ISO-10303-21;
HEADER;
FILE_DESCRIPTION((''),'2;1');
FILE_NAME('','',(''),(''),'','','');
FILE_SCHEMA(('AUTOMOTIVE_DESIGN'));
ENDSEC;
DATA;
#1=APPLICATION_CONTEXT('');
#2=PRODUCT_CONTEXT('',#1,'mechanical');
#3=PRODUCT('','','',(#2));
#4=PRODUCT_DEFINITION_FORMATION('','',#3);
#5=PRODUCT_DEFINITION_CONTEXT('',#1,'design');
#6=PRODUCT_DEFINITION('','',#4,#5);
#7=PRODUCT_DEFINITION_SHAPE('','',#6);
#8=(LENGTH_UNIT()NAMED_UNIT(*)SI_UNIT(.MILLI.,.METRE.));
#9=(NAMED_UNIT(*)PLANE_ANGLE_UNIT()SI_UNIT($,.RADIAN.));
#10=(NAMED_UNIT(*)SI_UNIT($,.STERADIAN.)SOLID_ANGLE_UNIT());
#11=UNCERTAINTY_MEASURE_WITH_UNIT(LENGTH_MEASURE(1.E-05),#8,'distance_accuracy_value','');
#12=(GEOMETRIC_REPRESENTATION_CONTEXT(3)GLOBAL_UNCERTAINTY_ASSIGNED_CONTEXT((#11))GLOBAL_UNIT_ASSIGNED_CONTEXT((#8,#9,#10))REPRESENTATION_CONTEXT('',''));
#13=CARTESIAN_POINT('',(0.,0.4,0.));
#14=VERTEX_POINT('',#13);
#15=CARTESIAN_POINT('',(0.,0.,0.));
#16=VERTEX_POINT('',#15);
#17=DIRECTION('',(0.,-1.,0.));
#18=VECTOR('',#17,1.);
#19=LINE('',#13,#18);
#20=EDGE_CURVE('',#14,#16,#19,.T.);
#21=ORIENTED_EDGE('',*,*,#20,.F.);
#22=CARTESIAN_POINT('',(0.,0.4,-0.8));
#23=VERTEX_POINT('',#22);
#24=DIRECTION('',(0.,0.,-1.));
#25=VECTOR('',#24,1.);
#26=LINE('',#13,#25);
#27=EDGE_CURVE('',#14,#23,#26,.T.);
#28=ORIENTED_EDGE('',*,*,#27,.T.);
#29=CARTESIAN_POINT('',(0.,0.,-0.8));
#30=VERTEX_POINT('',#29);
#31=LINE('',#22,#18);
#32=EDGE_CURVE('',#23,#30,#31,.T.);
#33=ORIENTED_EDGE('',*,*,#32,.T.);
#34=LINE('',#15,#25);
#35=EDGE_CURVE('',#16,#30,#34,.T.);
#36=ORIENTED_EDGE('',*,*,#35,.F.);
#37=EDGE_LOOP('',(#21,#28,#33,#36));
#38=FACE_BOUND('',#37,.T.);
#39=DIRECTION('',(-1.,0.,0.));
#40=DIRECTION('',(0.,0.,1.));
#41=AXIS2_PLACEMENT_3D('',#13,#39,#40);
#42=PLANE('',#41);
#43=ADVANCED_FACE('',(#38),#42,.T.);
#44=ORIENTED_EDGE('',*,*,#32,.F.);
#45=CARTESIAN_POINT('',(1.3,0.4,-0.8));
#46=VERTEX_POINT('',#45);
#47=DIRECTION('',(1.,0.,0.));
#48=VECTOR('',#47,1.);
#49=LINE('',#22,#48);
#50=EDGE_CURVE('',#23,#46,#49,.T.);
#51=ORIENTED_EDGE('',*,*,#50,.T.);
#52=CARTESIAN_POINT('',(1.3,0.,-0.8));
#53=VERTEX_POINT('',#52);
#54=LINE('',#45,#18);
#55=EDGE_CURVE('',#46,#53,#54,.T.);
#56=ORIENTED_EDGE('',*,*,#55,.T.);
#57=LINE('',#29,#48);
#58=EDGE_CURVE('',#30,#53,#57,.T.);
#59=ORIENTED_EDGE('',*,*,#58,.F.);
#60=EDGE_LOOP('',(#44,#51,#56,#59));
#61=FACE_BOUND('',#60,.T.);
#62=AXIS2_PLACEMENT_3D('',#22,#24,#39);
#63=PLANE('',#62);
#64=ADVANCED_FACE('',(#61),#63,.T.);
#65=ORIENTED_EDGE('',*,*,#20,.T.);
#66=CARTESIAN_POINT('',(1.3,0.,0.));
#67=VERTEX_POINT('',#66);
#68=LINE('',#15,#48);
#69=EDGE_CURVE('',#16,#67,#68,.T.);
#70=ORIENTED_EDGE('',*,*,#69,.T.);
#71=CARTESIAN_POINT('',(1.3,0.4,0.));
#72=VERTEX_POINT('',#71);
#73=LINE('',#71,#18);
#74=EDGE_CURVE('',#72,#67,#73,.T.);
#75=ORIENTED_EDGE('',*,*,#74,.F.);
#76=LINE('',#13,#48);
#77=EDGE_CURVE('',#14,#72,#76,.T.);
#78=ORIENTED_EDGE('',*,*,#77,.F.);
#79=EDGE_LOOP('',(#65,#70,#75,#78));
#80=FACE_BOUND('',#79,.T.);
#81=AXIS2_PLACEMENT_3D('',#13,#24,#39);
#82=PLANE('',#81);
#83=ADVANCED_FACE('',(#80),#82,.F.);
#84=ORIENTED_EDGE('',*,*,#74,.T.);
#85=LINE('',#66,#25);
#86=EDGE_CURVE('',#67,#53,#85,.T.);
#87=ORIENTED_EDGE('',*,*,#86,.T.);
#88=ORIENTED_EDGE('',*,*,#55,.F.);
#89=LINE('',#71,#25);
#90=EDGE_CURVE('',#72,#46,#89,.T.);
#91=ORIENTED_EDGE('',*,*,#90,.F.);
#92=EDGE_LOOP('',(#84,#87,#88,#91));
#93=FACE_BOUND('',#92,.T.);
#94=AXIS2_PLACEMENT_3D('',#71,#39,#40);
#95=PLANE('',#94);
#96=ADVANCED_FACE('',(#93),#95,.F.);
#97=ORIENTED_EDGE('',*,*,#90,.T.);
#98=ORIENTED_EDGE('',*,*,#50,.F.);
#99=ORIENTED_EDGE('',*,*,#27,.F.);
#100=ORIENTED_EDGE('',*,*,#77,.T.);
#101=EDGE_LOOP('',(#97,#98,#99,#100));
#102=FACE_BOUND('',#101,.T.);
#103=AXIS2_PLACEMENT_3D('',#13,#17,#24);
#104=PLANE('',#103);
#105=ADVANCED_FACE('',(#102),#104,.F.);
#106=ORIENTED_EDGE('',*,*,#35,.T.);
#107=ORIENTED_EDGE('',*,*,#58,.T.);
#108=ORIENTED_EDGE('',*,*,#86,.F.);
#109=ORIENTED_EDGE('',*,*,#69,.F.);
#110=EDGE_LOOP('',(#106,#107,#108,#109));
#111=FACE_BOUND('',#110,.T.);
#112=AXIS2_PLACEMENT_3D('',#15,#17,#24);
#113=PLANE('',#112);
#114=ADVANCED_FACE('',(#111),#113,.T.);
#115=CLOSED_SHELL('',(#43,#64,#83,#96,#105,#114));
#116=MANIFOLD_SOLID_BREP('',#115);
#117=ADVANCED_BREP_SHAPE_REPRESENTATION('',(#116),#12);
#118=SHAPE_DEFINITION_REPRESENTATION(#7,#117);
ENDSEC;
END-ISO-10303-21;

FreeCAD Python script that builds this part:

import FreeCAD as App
import Part
import Sketcher

V = App.Vector


def add_polygon(sketch, points):
    """Adds a closed chain of lines whose ends are joined by coincident constraints."""
    first, n = sketch.GeometryCount, len(points)
    for a, b in zip(points, points[1:] + points[:1]):
        sketch.addGeometry(Part.LineSegment(App.Vector(*a, 0), App.Vector(*b, 0)), False)
    for i in range(n):
        sketch.addConstraint(Sketcher.Constraint("Coincident", first + i, 2, first + (i + 1) % n, 1))

doc = App.newDocument("Part")
params = doc.addObject("Spreadsheet::Sheet", "Params")
for row, (alias, value) in enumerate([
    ("sketch1_width", "1.3 mm"),
    ("sketch1_height", "0.8 mm"),
    ("pad1_length", "0.4 mm"),
], start=1):
    params.set(f"A{row}", alias)
    params.set(f"B{row}", "=" + value)
    params.setAlias(f"B{row}", alias)

body = doc.addObject("PartDesign::Body", "Body")

# Sketch on XZ plane
sketch1 = doc.addObject("Sketcher::SketchObject", "Sketch")
body.addObject(sketch1)
sketch1.AttachmentSupport = (doc.XZ_Plane, [""])
sketch1.MapMode = "FlatFace"
add_polygon(sketch1, [(0, -0.8), (0, 0), (1.3, 0), (1.3, -0.8)])  # lines 0-3
sketch1.addConstraint([
    Sketcher.Constraint("Vertical", 0),
    Sketcher.Constraint("Horizontal", 1),
    Sketcher.Constraint("Vertical", 2),
    Sketcher.Constraint("Horizontal", 3),
    Sketcher.Constraint("Coincident", 0, 2, -1, 1),
    Sketcher.Constraint("DistanceX", 1, 1, 1, 2, 1.3),
    Sketcher.Constraint("DistanceY", 0, 1, 0, 2, 0.8),
])
sketch1.setExpression("Constraints[9]", "Params.sketch1_width")
sketch1.setExpression("Constraints[10]", "Params.sketch1_height")
pad1 = doc.addObject("PartDesign::Pad", "Pad")
body.addObject(pad1)
pad1.Profile = sketch1
pad1.setExpression("Length", "Params.pad1_length")
pad1.Reversed = True

doc.recompute()
